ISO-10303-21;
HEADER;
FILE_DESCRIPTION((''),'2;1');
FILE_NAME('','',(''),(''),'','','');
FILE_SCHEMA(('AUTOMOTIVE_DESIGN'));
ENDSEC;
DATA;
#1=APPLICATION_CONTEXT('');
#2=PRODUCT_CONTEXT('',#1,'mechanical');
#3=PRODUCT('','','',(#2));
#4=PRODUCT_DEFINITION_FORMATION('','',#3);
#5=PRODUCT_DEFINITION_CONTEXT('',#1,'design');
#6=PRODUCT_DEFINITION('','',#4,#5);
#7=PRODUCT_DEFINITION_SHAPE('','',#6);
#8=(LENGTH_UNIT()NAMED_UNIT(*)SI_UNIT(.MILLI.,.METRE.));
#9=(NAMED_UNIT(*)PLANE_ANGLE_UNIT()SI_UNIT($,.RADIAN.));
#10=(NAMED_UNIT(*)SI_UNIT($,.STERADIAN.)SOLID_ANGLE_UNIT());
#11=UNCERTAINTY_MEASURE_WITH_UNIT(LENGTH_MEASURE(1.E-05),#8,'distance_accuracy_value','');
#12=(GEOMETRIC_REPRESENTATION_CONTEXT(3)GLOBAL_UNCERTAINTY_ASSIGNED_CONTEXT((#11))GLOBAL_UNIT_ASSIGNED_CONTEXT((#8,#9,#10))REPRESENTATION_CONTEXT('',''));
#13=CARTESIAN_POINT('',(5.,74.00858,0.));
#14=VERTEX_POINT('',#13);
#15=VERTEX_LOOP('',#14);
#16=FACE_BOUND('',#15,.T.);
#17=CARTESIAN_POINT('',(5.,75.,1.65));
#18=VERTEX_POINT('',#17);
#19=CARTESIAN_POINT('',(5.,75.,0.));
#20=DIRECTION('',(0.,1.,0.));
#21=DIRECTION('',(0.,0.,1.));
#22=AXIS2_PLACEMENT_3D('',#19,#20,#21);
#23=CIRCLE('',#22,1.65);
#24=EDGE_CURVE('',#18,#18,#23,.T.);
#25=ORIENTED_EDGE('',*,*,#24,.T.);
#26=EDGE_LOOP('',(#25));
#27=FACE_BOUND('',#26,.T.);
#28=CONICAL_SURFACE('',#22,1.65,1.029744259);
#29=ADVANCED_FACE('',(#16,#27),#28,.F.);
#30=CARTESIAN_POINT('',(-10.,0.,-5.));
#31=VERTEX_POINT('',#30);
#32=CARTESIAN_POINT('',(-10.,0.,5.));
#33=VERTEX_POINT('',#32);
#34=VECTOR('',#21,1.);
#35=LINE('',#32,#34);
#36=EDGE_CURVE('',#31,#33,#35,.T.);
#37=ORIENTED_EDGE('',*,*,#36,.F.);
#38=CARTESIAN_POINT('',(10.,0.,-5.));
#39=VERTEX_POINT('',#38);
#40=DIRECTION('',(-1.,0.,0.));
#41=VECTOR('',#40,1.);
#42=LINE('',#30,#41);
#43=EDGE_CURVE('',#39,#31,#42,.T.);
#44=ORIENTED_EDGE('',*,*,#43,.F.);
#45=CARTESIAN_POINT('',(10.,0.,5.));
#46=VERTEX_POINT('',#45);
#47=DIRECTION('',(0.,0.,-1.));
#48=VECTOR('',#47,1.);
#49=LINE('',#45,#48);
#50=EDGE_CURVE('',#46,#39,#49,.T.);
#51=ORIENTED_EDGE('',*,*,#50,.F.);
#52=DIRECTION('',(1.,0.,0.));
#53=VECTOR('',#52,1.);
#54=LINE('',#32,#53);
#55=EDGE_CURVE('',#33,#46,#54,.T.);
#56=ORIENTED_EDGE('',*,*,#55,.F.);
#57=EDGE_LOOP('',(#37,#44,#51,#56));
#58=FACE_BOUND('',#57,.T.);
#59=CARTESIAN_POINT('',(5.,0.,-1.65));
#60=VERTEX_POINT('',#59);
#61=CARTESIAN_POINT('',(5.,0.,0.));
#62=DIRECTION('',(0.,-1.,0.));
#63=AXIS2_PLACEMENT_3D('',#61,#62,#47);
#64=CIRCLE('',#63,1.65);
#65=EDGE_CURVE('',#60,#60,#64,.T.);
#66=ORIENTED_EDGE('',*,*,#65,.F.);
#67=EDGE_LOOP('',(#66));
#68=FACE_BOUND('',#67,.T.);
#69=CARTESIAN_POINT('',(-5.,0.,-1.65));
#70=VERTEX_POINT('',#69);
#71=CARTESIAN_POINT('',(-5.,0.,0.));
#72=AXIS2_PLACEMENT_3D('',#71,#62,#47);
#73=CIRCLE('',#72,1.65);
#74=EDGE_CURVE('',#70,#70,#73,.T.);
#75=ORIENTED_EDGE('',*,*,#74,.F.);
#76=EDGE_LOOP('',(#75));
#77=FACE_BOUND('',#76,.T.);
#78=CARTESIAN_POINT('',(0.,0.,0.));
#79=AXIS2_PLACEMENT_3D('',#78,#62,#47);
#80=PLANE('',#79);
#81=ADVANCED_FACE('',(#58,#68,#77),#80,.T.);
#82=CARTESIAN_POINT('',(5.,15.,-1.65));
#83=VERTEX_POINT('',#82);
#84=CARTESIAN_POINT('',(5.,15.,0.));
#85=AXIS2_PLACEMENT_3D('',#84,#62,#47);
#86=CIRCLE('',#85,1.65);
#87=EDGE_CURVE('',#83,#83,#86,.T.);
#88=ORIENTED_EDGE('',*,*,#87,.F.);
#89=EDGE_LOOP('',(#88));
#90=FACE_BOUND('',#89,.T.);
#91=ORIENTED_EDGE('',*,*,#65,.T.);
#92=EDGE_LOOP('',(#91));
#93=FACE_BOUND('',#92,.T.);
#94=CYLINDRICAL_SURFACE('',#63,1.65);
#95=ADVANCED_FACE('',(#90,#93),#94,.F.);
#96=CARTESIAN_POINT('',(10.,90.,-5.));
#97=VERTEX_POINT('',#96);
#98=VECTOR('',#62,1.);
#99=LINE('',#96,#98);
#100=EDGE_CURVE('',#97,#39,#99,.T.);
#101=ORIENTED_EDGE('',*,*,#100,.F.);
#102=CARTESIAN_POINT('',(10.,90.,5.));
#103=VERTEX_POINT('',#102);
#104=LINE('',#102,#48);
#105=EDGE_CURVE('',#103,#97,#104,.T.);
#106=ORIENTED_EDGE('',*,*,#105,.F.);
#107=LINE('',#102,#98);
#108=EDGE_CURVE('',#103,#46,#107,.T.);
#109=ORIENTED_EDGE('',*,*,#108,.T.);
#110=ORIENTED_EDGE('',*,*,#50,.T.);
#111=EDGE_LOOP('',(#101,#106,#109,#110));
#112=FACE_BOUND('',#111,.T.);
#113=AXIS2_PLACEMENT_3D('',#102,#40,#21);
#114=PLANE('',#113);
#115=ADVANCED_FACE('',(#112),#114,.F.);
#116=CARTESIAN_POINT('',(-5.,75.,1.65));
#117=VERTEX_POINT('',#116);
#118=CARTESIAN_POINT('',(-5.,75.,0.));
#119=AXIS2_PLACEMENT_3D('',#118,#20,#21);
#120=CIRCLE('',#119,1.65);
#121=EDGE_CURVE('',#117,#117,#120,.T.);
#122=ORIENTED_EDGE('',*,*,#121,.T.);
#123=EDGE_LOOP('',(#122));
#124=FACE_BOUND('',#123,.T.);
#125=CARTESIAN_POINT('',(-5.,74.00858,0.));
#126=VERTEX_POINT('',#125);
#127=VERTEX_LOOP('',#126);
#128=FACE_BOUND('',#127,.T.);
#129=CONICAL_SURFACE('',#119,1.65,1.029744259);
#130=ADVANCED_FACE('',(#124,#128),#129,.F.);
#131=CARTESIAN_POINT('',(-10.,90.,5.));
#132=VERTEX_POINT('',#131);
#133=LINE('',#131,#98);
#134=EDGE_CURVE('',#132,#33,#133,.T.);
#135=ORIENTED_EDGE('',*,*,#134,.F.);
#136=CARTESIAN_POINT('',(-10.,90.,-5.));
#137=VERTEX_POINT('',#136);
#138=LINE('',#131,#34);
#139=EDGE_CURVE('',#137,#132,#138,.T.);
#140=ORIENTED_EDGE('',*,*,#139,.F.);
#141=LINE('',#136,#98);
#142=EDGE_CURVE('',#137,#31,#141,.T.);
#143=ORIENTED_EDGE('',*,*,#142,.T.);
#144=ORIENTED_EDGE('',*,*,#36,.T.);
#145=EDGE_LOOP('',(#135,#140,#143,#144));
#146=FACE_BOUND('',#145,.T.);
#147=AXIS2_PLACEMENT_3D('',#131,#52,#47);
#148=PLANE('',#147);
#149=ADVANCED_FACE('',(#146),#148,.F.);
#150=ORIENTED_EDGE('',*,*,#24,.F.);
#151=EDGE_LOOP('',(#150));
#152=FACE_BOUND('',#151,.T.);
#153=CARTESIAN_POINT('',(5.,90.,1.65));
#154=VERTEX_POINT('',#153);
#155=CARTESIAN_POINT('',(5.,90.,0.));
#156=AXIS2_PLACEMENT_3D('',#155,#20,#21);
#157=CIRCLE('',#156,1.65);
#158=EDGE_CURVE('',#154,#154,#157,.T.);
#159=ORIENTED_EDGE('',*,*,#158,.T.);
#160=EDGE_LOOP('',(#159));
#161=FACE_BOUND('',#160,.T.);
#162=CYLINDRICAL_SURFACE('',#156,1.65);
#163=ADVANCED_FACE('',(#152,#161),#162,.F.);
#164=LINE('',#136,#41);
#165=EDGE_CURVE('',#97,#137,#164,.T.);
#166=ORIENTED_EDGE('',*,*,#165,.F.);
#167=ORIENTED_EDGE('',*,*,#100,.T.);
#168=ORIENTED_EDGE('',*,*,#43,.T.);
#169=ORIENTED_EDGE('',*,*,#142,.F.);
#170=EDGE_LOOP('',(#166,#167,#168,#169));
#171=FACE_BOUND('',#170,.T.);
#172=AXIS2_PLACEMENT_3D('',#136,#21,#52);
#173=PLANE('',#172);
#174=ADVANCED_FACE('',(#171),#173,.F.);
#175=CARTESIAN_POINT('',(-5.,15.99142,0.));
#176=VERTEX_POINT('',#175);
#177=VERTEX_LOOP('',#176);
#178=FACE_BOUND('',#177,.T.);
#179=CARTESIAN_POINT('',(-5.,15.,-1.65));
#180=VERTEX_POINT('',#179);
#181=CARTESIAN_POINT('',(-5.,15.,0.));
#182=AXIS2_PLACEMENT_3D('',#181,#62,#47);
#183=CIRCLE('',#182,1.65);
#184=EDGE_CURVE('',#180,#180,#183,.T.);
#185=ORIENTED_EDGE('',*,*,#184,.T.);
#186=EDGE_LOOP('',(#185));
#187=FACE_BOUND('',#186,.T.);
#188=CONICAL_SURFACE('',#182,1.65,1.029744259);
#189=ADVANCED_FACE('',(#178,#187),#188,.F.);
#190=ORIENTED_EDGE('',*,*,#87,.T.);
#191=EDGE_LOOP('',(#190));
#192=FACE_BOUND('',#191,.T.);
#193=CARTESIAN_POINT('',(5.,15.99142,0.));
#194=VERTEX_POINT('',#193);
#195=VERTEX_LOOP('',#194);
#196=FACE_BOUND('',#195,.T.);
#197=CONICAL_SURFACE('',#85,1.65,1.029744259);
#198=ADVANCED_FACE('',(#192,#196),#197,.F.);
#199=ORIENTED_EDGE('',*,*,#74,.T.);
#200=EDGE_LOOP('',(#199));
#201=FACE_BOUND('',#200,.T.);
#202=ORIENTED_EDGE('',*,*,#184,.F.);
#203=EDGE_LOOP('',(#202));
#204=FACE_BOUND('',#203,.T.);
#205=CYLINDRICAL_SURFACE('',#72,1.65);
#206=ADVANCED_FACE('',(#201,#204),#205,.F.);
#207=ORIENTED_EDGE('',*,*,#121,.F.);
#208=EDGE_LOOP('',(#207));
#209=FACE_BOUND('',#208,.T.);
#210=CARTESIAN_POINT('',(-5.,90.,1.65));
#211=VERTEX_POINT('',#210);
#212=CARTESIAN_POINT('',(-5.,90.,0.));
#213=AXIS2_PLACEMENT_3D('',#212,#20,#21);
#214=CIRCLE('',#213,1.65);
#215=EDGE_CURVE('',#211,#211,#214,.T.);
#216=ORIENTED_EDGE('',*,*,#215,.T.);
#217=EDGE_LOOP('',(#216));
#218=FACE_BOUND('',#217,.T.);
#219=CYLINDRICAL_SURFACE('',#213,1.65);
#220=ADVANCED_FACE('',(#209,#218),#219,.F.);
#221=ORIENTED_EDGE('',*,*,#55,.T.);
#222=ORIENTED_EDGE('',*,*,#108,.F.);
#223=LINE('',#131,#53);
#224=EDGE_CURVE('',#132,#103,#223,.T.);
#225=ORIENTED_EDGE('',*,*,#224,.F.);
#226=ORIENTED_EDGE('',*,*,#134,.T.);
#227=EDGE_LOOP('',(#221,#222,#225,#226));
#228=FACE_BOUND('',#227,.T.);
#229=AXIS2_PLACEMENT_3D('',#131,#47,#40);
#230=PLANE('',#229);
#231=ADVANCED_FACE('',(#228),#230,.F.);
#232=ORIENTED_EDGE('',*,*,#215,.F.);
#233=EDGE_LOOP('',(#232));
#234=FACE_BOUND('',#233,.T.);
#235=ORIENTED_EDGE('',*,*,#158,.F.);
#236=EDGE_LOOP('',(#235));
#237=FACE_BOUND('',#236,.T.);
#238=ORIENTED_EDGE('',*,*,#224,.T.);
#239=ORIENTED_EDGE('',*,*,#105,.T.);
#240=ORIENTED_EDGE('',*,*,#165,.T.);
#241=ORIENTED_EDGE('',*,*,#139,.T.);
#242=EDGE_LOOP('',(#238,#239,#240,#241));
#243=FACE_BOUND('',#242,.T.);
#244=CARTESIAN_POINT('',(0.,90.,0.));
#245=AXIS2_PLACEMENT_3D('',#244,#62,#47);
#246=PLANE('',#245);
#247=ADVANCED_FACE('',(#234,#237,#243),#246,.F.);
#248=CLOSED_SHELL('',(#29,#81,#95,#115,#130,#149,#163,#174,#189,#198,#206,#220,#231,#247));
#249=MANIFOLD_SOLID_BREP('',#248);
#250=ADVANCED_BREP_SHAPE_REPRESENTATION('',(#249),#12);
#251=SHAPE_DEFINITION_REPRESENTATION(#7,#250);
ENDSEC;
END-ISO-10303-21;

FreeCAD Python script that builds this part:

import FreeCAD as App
import Part
import Sketcher
from FreeCAD import Vector
Q = App.Units.Quantity


def add_polygon(sketch, points):
    """Adds a closed chain of lines whose ends are joined by coincident constraints."""
    first, n = sketch.GeometryCount, len(points)
    for a, b in zip(points, points[1:] + points[:1]):
        sketch.addGeometry(Part.LineSegment(App.Vector(*a, 0), App.Vector(*b, 0)), False)
    for i in range(n):
        sketch.addConstraint(Sketcher.Constraint("Coincident", first + i, 2, first + (i + 1) % n, 1))

doc = App.newDocument("Part")
body = doc.addObject("PartDesign::Body", "Body")

# Sketch on XZ plane
sketch1 = doc.addObject("Sketcher::SketchObject", "Sketch")
body.addObject(sketch1)
sketch1.AttachmentSupport = (doc.XZ_Plane, [""])
sketch1.MapMode = "FlatFace"
add_polygon(sketch1, [(-10, -5), (-10, 5), (10, 5), (10, -5)])  # lines 0-3
sketch1.addConstraint([
    Sketcher.Constraint("Vertical", 0),
    Sketcher.Constraint("Horizontal", 1),
    Sketcher.Constraint("Vertical", 2),
    Sketcher.Constraint("Horizontal", 3),
    Sketcher.Constraint("Symmetric", 0, 2, 2, 2, -1, 1),
    Sketcher.Constraint("DistanceX", 1, 1, 1, 2, Q("20 mm")),
    Sketcher.Constraint("DistanceY", 0, 1, 0, 2, Q("10 mm")),
])
pad1 = doc.addObject("PartDesign::Pad", "Pad")
body.addObject(pad1)
pad1.Profile = sketch1
pad1.Length = 90
pad1.Reversed = True

# Sketch on XZ plane
sketch2 = doc.addObject("Sketcher::SketchObject", "Sketch001")
body.addObject(sketch2)
sketch2.AttachmentSupport = (doc.XZ_Plane, [""])
sketch2.MapMode = "FlatFace"
sketch2.addGeometry([
    Part.Circle(Vector(5, 0, 0), Vector(0, 0, 1), 1.6),
    Part.Circle(Vector(-5, 0, 0), Vector(0, 0, 1), 1.6),
], False)
sketch2.addConstraint([
    Sketcher.Constraint("Equal", 0, 1),
    Sketcher.Constraint("Symmetric", 0, 3, 1, 3, -1, 1),
    Sketcher.Constraint("PointOnObject", 0, 3, -1),
    Sketcher.Constraint("Diameter", 0, Q("3.3 mm")),
    Sketcher.Constraint("DistanceX", -1, 1, 0, 3, Q("5 mm")),
])
doc.recompute()
hole = doc.addObject("PartDesign::Hole", "Hole")
body.addObject(hole)
hole.Profile = sketch2
hole.ThreadType = "None"
hole.Diameter = 3.3
hole.DepthType = "Dimension"
hole.Depth = 15
hole.DrillPoint = "Angled"
hole.DrillPointAngle = 118

# Sketch on XZ plane
sketch3 = doc.addObject("Sketcher::SketchObject", "Sketch002")
body.addObject(sketch3)
sketch3.AttachmentSupport = (doc.XZ_Plane, [""])
sketch3.MapMode = "FlatFace"
sketch3.AttachmentOffset = App.Placement(Vector(0, 0, -90), App.Rotation())
sketch3.addGeometry([
    Part.Circle(Vector(-5, 0, 0), Vector(0, 0, 1), 1.6),
    Part.Circle(Vector(5, 0, 0), Vector(0, 0, 1), 1.6),
], False)
sketch3.addConstraint([
    Sketcher.Constraint("Equal", 0, 1),
    Sketcher.Constraint("Symmetric", 0, 3, 1, 3, -1, 1),
    Sketcher.Constraint("PointOnObject", 0, 3, -1),
    Sketcher.Constraint("Diameter", 0, Q("3.3 mm")),
    Sketcher.Constraint("DistanceX", 0, 3, -1, 1, Q("5 mm")),
])
doc.recompute()
hole2 = doc.addObject("PartDesign::Hole", "Hole001")
body.addObject(hole2)
hole2.Profile = sketch3
hole2.ThreadType = "None"
hole2.Diameter = 3.3
hole2.DepthType = "Dimension"
hole2.Depth = 15
hole2.DrillPoint = "Angled"
hole2.DrillPointAngle = 118
hole2.Reversed = True

doc.recompute()
